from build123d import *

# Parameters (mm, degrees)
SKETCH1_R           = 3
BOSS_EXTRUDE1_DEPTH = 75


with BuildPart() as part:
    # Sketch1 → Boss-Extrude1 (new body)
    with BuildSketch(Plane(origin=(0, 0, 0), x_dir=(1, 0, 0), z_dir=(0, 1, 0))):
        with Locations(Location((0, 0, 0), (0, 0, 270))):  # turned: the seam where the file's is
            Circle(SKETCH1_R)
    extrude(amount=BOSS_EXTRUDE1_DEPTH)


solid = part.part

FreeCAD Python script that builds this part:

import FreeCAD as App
import Part
import Sketcher
from FreeCAD import Vector
Q = App.Units.Quantity

doc = App.newDocument("Part")
params = doc.addObject("Spreadsheet::Sheet", "Params")
for row, (alias, value) in enumerate([
    ("sketch1_diameter", "6 mm"),
    ("pad1_length", "75 mm"),
], start=1):
    params.set(f"A{row}", alias)
    params.set(f"B{row}", "=" + value)
    params.setAlias(f"B{row}", alias)

body = doc.addObject("PartDesign::Body", "Body")

sketch1 = body.newObject("Sketcher::SketchObject", "Sketch")
sketch1.AttachmentSupport = (doc.getObject("XZ_Plane"), [""])
sketch1.MapMode = "FlatFace"
sketch1.addGeometry(Part.Circle(Vector(0, 0, 0), Vector(0, 0, 1), 3), False)
sketch1.addConstraint(Sketcher.Constraint("Coincident", 0, 3, -1, 1))
sketch1.addConstraint(Sketcher.Constraint("Diameter", 0, Q("6 mm")))
sketch1.setExpression("Constraints[1]", "Params.sketch1_diameter")
pad1 = body.newObject("PartDesign::Pad", "Pad")
pad1.Profile = sketch1
pad1.setExpression("Length", "Params.pad1_length")
pad1.Reversed = True

doc.recompute()
